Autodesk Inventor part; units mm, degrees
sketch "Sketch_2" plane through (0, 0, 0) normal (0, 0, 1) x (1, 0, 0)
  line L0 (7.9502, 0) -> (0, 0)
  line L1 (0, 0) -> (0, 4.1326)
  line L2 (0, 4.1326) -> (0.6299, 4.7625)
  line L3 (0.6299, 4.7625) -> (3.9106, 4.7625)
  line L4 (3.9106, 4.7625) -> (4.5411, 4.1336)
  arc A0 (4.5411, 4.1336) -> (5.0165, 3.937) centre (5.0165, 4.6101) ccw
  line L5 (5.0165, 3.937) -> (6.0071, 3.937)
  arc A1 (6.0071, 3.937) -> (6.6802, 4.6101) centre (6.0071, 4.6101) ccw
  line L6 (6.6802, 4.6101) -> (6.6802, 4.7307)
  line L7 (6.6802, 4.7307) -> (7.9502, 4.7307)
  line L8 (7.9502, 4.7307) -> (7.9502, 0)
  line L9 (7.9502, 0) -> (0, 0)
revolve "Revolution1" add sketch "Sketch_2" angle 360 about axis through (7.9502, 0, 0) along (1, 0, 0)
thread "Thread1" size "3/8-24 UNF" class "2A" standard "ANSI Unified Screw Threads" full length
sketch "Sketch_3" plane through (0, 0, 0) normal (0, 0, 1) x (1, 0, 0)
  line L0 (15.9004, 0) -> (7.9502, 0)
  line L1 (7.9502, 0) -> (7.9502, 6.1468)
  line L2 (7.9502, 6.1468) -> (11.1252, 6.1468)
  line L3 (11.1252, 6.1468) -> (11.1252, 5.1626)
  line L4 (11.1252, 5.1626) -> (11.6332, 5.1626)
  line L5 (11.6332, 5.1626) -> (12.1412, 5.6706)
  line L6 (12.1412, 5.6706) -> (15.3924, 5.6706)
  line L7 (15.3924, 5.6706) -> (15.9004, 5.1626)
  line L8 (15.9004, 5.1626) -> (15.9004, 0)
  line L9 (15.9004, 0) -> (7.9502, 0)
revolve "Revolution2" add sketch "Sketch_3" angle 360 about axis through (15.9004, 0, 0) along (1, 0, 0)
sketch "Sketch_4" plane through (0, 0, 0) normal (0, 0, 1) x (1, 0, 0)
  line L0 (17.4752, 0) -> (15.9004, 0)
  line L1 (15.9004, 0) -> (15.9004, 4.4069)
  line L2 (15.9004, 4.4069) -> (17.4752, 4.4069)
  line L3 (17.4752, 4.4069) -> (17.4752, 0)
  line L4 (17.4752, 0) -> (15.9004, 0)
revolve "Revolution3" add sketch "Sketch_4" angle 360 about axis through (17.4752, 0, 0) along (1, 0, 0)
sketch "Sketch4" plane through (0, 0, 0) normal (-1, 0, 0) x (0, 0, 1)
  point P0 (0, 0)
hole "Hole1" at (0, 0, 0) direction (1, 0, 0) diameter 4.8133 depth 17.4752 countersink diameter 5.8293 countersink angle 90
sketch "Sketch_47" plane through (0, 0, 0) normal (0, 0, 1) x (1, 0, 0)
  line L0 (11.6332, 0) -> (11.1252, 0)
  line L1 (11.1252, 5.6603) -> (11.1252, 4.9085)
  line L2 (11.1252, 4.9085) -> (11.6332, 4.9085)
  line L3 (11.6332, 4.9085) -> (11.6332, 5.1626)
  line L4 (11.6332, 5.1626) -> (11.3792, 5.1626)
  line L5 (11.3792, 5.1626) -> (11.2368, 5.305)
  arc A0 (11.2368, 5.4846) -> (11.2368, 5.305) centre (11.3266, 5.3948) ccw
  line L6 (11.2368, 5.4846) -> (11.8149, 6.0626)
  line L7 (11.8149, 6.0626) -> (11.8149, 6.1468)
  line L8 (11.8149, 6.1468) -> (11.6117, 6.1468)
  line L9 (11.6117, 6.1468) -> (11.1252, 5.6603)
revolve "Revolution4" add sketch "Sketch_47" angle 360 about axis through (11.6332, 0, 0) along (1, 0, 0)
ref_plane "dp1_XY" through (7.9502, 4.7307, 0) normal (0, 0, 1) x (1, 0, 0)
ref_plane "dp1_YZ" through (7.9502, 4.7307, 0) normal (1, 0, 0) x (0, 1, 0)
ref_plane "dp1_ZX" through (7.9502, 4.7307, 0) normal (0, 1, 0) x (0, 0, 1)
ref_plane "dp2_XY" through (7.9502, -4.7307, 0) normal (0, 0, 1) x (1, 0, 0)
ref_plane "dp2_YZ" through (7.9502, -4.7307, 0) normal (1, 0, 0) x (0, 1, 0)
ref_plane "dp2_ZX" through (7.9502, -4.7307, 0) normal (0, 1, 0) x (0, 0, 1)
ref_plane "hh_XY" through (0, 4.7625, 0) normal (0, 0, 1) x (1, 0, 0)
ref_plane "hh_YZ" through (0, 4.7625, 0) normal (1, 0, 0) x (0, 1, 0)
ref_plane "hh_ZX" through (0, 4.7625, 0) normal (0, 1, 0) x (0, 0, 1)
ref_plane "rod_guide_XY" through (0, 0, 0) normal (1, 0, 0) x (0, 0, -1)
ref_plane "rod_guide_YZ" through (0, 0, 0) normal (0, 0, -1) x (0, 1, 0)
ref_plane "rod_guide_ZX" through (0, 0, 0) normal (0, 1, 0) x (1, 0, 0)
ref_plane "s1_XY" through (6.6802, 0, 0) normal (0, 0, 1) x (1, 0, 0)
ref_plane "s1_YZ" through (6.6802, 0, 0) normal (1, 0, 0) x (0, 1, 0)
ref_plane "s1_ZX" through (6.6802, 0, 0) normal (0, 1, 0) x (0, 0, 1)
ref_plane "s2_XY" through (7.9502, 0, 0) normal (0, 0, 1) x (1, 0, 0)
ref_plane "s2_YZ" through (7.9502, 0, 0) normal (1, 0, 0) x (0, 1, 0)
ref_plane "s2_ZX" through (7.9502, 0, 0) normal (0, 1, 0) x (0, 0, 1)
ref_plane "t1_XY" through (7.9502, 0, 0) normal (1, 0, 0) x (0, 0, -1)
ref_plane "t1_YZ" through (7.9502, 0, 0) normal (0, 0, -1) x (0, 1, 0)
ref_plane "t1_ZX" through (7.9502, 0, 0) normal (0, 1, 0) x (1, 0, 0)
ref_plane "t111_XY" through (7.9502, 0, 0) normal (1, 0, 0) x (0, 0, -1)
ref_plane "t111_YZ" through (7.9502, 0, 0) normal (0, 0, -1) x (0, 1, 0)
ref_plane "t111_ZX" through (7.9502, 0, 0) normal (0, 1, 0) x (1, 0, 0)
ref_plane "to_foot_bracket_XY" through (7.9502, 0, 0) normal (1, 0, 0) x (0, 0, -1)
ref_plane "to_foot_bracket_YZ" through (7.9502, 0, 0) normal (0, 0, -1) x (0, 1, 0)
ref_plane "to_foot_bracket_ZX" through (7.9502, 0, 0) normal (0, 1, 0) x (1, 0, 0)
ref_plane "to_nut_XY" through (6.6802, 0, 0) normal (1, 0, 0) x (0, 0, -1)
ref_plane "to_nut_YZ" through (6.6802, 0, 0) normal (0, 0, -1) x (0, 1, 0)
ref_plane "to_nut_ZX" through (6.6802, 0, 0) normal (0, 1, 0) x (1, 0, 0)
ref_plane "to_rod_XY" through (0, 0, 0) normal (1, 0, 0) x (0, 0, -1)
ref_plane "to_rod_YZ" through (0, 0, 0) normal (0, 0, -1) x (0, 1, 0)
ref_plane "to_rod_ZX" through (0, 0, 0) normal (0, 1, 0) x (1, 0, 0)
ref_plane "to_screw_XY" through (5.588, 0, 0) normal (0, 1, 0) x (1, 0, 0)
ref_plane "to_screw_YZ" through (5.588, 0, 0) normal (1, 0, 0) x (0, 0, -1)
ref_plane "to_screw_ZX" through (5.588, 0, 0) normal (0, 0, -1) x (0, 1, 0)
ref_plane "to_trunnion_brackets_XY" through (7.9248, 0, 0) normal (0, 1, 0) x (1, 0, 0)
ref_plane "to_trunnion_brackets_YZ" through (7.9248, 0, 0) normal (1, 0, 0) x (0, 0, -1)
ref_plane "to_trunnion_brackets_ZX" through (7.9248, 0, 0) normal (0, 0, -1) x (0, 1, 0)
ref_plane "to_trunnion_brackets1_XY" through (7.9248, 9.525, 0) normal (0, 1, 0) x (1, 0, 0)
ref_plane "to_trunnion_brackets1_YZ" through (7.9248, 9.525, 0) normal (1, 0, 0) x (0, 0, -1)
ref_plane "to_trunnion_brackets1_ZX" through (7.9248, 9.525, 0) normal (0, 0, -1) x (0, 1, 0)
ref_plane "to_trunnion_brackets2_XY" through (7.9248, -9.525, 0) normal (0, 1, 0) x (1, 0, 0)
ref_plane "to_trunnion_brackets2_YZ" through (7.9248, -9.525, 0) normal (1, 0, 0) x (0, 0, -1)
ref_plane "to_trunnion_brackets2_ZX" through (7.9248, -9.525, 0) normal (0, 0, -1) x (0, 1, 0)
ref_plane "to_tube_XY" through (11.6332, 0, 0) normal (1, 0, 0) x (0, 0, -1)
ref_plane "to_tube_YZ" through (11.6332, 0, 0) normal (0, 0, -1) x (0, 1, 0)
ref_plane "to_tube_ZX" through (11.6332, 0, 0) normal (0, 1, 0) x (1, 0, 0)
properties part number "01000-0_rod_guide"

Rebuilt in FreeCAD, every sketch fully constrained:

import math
import FreeCAD as App
import Part
import Sketcher

V = App.Vector
Q = App.Units.Quantity

doc = App.newDocument("Part")
params = doc.addObject("Spreadsheet::Sheet", "Params")
for row, (alias, value) in enumerate([
    ("sketch1_width", "0.05 in"),
    ("sketch1_width2", "0.313 in"),
    ("sketch1_width3", "0.039 in"),
    ("revolution_angle", "360 deg"),
    ("sketch2_width", "0.02 in"),
    ("sketch2_width2", "0.313 in"),
    ("sketch2_width3", "0.128 in"),
    ("sketch2_width4", "0.125 in"),
    ("sketch2_height", "0.242 in"),
    ("revolution2_angle", "360 deg"),
    ("sketch3_width", "0.062 in"),
    ("revolution3_angle", "360 deg"),
    ("hole_diameter", "0.1895 in"),
    ("hole_depth", "0.688 in"),
    ("hole_csink_diameter", "0.2295 in"),
    ("sketch5_radius", "0.005 in"),
    ("sketch5_width", "0.02 in"),
    ("sketch5_width2", "0.01 in"),
    ("sketch5_width3", "0.008 in"),
    ("revolution4_angle", "360 deg"),
], start=1):
    params.set(f"A{row}", alias)
    params.set(f"B{row}", "=" + value)
    params.setAlias(f"B{row}", alias)

body = doc.addObject("PartDesign::Body", "Body")

sketch1 = body.newObject("Sketcher::SketchObject", "Sketch")
sketch1.AttachmentSupport = (doc.getObject("XY_Plane"), [""])
sketch1.MapMode = "FlatFace"
sketch1.addGeometry(Part.LineSegment(V(0, 0, 0), V(7.95, 0, 0)), False)
sketch1.addGeometry(Part.LineSegment(V(7.95, 0, 0), V(7.95, 4.73, 0)), False)
sketch1.addGeometry(Part.LineSegment(V(7.95, 4.73, 0), V(6.68, 4.73, 0)), False)
sketch1.addGeometry(Part.LineSegment(V(6.68, 4.73, 0), V(6.68, 4.61, 0)), False)
sketch1.addGeometry(Part.ArcOfCircle(Part.Circle(V(6.01, 4.61, 0), V(0, 0, 1), 0.67), math.radians(-90), math.radians(0)), False)
sketch1.addGeometry(Part.LineSegment(V(6.01, 3.94, 0), V(5.02, 3.94, 0)), False)
sketch1.addGeometry(Part.ArcOfCircle(Part.Circle(V(5.02, 4.61, 0), V(0, 0, 1), 0.67), math.radians(-135), math.radians(-90)), False)
sketch1.addGeometry(Part.LineSegment(V(4.54, 4.13, 0), V(3.91, 4.76, 0)), False)
sketch1.addGeometry(Part.LineSegment(V(3.91, 4.76, 0), V(0.63, 4.76, 0)), False)
sketch1.addGeometry(Part.LineSegment(V(0.63, 4.76, 0), V(0, 4.13, 0)), False)
sketch1.addGeometry(Part.LineSegment(V(0, 4.13, 0), V(0, 0, 0)), False)
sketch1.addConstraint(Sketcher.Constraint("Coincident", 0, 2, 1, 1))
sketch1.addConstraint(Sketcher.Constraint("Coincident", 1, 2, 2, 1))
sketch1.addConstraint(Sketcher.Constraint("Coincident", 2, 2, 3, 1))
sketch1.addConstraint(Sketcher.Constraint("Tangent", 3, 2, 4, 2))
sketch1.addConstraint(Sketcher.Constraint("Tangent", 4, 1, 5, 1))
sketch1.addConstraint(Sketcher.Constraint("Tangent", 5, 2, 6, 2))
sketch1.addConstraint(Sketcher.Constraint("Tangent", 6, 1, 7, 1))
sketch1.addConstraint(Sketcher.Constraint("Coincident", 7, 2, 8, 1))
sketch1.addConstraint(Sketcher.Constraint("Coincident", 8, 2, 9, 1))
sketch1.addConstraint(Sketcher.Constraint("Coincident", 9, 2, 10, 1))
sketch1.addConstraint(Sketcher.Constraint("Coincident", 10, 2, 0, 1))
sketch1.addConstraint(Sketcher.Constraint("Horizontal", 0))
sketch1.addConstraint(Sketcher.Constraint("Vertical", 1))
sketch1.addConstraint(Sketcher.Constraint("Horizontal", 2))
sketch1.addConstraint(Sketcher.Constraint("Vertical", 3))
sketch1.addConstraint(Sketcher.Constraint("Horizontal", 5))
sketch1.addConstraint(Sketcher.Constraint("Horizontal", 8))
sketch1.addConstraint(Sketcher.Constraint("Vertical", 10))
sketch1.addConstraint(Sketcher.Constraint("Coincident", 10, 2, -1, 1))
sketch1.addConstraint(Sketcher.Constraint("Equal", 4, 6))
sketch1.addConstraint(Sketcher.Constraint("Angle", 9, Q("-135 deg")))
sketch1.addConstraint(Sketcher.Constraint("DistanceX", 2, 2, 2, 1, Q("0.05 in")))
sketch1.addConstraint(Sketcher.Constraint("Radius", 4, Q("0.0265 in")))
sketch1.addConstraint(Sketcher.Constraint("DistanceX", 0, 1, 0, 2, Q("0.313 in")))
sketch1.addConstraint(Sketcher.Constraint("DistanceX", 5, 2, 5, 1, Q("0.039 in")))
sketch1.addConstraint(Sketcher.Constraint("DistanceY", 10, 2, 10, 1, Q("0.1627 in")))
sketch1.addConstraint(Sketcher.Constraint("DistanceY", -1, 1, 4, 1, Q("0.155 in")))
sketch1.addConstraint(Sketcher.Constraint("DistanceY", -1, 1, 7, 2, Q("0.1875 in")))
sketch1.addConstraint(Sketcher.Constraint("DistanceY", 4, 1, 2, 2, Q("0.031248 in")))
sketch1.addConstraint(Sketcher.Constraint("DistanceX", 8, 2, 8, 1, Q("3.2807 mm")))
sketch1.setExpression("Constraints[21]", "Params.sketch1_width")
sketch1.setExpression("Constraints[23]", "Params.sketch1_width2")
sketch1.setExpression("Constraints[24]", "Params.sketch1_width3")
revolution = body.newObject("PartDesign::Revolution", "Revolution")
revolution.Profile = sketch1
revolution.ReferenceAxis = (sketch1, ["H_Axis"])
revolution.setExpression("Angle", "Params.revolution_angle")

sketch2 = body.newObject("Sketcher::SketchObject", "Sketch001")
sketch2.AttachmentSupport = (doc.getObject("XY_Plane"), [""])
sketch2.MapMode = "FlatFace"
sketch2.addGeometry(Part.LineSegment(V(8, 0, 0), V(15.9, 0, 0)), False)
sketch2.addGeometry(Part.LineSegment(V(15.9, 0, 0), V(15.9, 5.2, 0)), False)
sketch2.addGeometry(Part.LineSegment(V(15.9, 5.2, 0), V(15.4, 5.7, 0)), False)
sketch2.addGeometry(Part.LineSegment(V(15.4, 5.7, 0), V(12.1, 5.7, 0)), False)
sketch2.addGeometry(Part.LineSegment(V(12.1, 5.7, 0), V(11.6, 5.2, 0)), False)
sketch2.addGeometry(Part.LineSegment(V(11.6, 5.2, 0), V(11.1, 5.2, 0)), False)
sketch2.addGeometry(Part.LineSegment(V(11.1, 5.2, 0), V(11.1, 6.1, 0)), False)
sketch2.addGeometry(Part.LineSegment(V(11.1, 6.1, 0), V(8, 6.1, 0)), False)
sketch2.addGeometry(Part.LineSegment(V(8, 6.1, 0), V(8, 0, 0)), False)
sketch2.addConstraint(Sketcher.Constraint("Coincident", 0, 2, 1, 1))
sketch2.addConstraint(Sketcher.Constraint("Coincident", 1, 2, 2, 1))
sketch2.addConstraint(Sketcher.Constraint("Coincident", 2, 2, 3, 1))
sketch2.addConstraint(Sketcher.Constraint("Coincident", 3, 2, 4, 1))
sketch2.addConstraint(Sketcher.Constraint("Coincident", 4, 2, 5, 1))
sketch2.addConstraint(Sketcher.Constraint("Coincident", 5, 2, 6, 1))
sketch2.addConstraint(Sketcher.Constraint("Coincident", 6, 2, 7, 1))
sketch2.addConstraint(Sketcher.Constraint("Coincident", 7, 2, 8, 1))
sketch2.addConstraint(Sketcher.Constraint("Coincident", 8, 2, 0, 1))
sketch2.addConstraint(Sketcher.Constraint("Horizontal", 0))
sketch2.addConstraint(Sketcher.Constraint("Vertical", 1))
sketch2.addConstraint(Sketcher.Constraint("Horizontal", 3))
sketch2.addConstraint(Sketcher.Constraint("Horizontal", 5))
sketch2.addConstraint(Sketcher.Constraint("Vertical", 6))
sketch2.addConstraint(Sketcher.Constraint("Horizontal", 7))
sketch2.addConstraint(Sketcher.Constraint("Vertical", 8))
sketch2.addConstraint(Sketcher.Constraint("PointOnObject", 0, 2, -1))
sketch2.addConstraint(Sketcher.Constraint("Perpendicular", 2, 4))
sketch2.addConstraint(Sketcher.Constraint("Horizontal", 1, 2, 4, 2))
sketch2.addConstraint(Sketcher.Constraint("Equal", 2, 4))
sketch2.addConstraint(Sketcher.Constraint("DistanceX", 5, 2, 5, 1, Q("0.02 in")))
sketch2.addConstraint(Sketcher.Constraint("DistanceX", 0, 1, 0, 2, Q("0.313 in")))
sketch2.addConstraint(Sketcher.Constraint("DistanceX", 3, 2, 3, 1, Q("0.128 in")))
sketch2.addConstraint(Sketcher.Constraint("DistanceX", 7, 2, 7, 1, Q("0.125 in")))
sketch2.addConstraint(Sketcher.Constraint("DistanceY", 8, 2, 8, 1, Q("0.242 in")))
sketch2.addConstraint(Sketcher.Constraint("DistanceX", -1, 1, 0, 2, Q("0.626 in")))
sketch2.addConstraint(Sketcher.Constraint("DistanceY", 1, 1, 1, 2, Q("5.1626 mm")))
sketch2.setExpression("Constraints[20]", "Params.sketch2_width")
sketch2.setExpression("Constraints[21]", "Params.sketch2_width2")
sketch2.setExpression("Constraints[22]", "Params.sketch2_width3")
sketch2.setExpression("Constraints[23]", "Params.sketch2_width4")
sketch2.setExpression("Constraints[24]", "Params.sketch2_height")
revolution2 = body.newObject("PartDesign::Revolution", "Revolution001")
revolution2.Profile = sketch2
revolution2.ReferenceAxis = (sketch2, ["H_Axis"])
revolution2.setExpression("Angle", "Params.revolution2_angle")

sketch3 = body.newObject("Sketcher::SketchObject", "Sketch002")
sketch3.AttachmentSupport = (doc.getObject("XY_Plane"), [""])
sketch3.MapMode = "FlatFace"
sketch3.addGeometry(Part.LineSegment(V(15.9, 0, 0), V(17.5, 0, 0)), False)
sketch3.addGeometry(Part.LineSegment(V(17.5, 0, 0), V(17.5, 4.4, 0)), False)
sketch3.addGeometry(Part.LineSegment(V(17.5, 4.4, 0), V(15.9, 4.4, 0)), False)
sketch3.addGeometry(Part.LineSegment(V(15.9, 4.4, 0), V(15.9, 0, 0)), False)
sketch3.addConstraint(Sketcher.Constraint("Coincident", 0, 2, 1, 1))
sketch3.addConstraint(Sketcher.Constraint("Coincident", 1, 2, 2, 1))
sketch3.addConstraint(Sketcher.Constraint("Coincident", 2, 2, 3, 1))
sketch3.addConstraint(Sketcher.Constraint("Coincident", 3, 2, 0, 1))
sketch3.addConstraint(Sketcher.Constraint("Horizontal", 0))
sketch3.addConstraint(Sketcher.Constraint("Vertical", 1))
sketch3.addConstraint(Sketcher.Constraint("Horizontal", 2))
sketch3.addConstraint(Sketcher.Constraint("Vertical", 3))
sketch3.addConstraint(Sketcher.Constraint("PointOnObject", 0, 2, -1))
sketch3.addConstraint(Sketcher.Constraint("DistanceX", 0, 1, 0, 2, Q("0.062 in")))
sketch3.addConstraint(Sketcher.Constraint("DistanceY", 1, 1, 1, 2, Q("0.1735 in")))
sketch3.addConstraint(Sketcher.Constraint("DistanceX", -1, 1, 0, 2, Q("0.688 in")))
sketch3.setExpression("Constraints[9]", "Params.sketch3_width")
revolution3 = body.newObject("PartDesign::Revolution", "Revolution002")
revolution3.Profile = sketch3
revolution3.ReferenceAxis = (sketch3, ["H_Axis"])
revolution3.setExpression("Angle", "Params.revolution3_angle")

sketch4 = body.newObject("Sketcher::SketchObject", "Sketch003")
sketch4.AttachmentSupport = (doc.getObject("YZ_Plane"), [""])
sketch4.MapMode = "FlatFace"
sketch4.addGeometry(Part.Circle(V(0, 0, 0), V(0, 0, 1), 2.4), False)
sketch4.addConstraint(Sketcher.Constraint("Coincident", 0, 3, -1, 1))
sketch4.addConstraint(Sketcher.Constraint("Diameter", 0, Q("0.1895 in")))
doc.recompute()
hole = body.newObject("PartDesign::Hole", "Hole")
hole.Profile = sketch4
hole.ThreadType = "None"
hole.setExpression("Diameter", "Params.hole_diameter")
hole.DepthType = "Dimension"
hole.setExpression("Depth", "Params.hole_depth")
hole.DrillPoint = "Flat"
hole.HoleCutType = "Countersink"
hole.setExpression("HoleCutDiameter", "Params.hole_csink_diameter")
hole.HoleCutCountersinkAngle = 90
hole.Reversed = True

sketch5 = body.newObject("Sketcher::SketchObject", "Sketch004")
sketch5.AttachmentSupport = (doc.getObject("XY_Plane"), [""])
sketch5.MapMode = "FlatFace"
sketch5.addGeometry(Part.LineSegment(V(11.61, 6.15, 0), V(11.13, 5.66, 0)), False)
sketch5.addGeometry(Part.LineSegment(V(11.13, 5.66, 0), V(11.13, 4.91, 0)), False)
sketch5.addGeometry(Part.LineSegment(V(11.13, 4.91, 0), V(11.63, 4.91, 0)), False)
sketch5.addGeometry(Part.LineSegment(V(11.63, 4.91, 0), V(11.63, 5.16, 0)), False)
sketch5.addGeometry(Part.LineSegment(V(11.63, 5.16, 0), V(11.38, 5.16, 0)), False)
sketch5.addGeometry(Part.LineSegment(V(11.38, 5.16, 0), V(11.24, 5.3, 0)), False)
sketch5.addGeometry(Part.ArcOfCircle(Part.Circle(V(11.33, 5.39, 0), V(0, 0, 1), 0.13), math.radians(135), math.radians(225)), False)
sketch5.addGeometry(Part.LineSegment(V(11.24, 5.48, 0), V(11.81, 6.06, 0)), False)
sketch5.addGeometry(Part.LineSegment(V(11.81, 6.06, 0), V(11.81, 6.15, 0)), False)
sketch5.addGeometry(Part.LineSegment(V(11.81, 6.15, 0), V(11.61, 6.15, 0)), False)
sketch5.addConstraint(Sketcher.Constraint("Coincident", 0, 2, 1, 1))
sketch5.addConstraint(Sketcher.Constraint("Coincident", 1, 2, 2, 1))
sketch5.addConstraint(Sketcher.Constraint("Coincident", 2, 2, 3, 1))
sketch5.addConstraint(Sketcher.Constraint("Coincident", 3, 2, 4, 1))
sketch5.addConstraint(Sketcher.Constraint("Coincident", 4, 2, 5, 1))
sketch5.addConstraint(Sketcher.Constraint("Tangent", 5, 2, 6, 2))
sketch5.addConstraint(Sketcher.Constraint("Tangent", 6, 1, 7, 1))
sketch5.addConstraint(Sketcher.Constraint("Coincident", 7, 2, 8, 1))
sketch5.addConstraint(Sketcher.Constraint("Coincident", 8, 2, 9, 1))
sketch5.addConstraint(Sketcher.Constraint("Coincident", 9, 2, 0, 1))
sketch5.addConstraint(Sketcher.Constraint("Vertical", 1))
sketch5.addConstraint(Sketcher.Constraint("Horizontal", 2))
sketch5.addConstraint(Sketcher.Constraint("Vertical", 3))
sketch5.addConstraint(Sketcher.Constraint("Horizontal", 4))
sketch5.addConstraint(Sketcher.Constraint("Vertical", 8))
sketch5.addConstraint(Sketcher.Constraint("Horizontal", 9))
sketch5.addConstraint(Sketcher.Constraint("Perpendicular", 0, 5))
sketch5.addConstraint(Sketcher.Constraint("Perpendicular", 5, 7))
sketch5.addConstraint(Sketcher.Constraint("Vertical", 5, 2, 6, 1))
sketch5.addConstraint(Sketcher.Constraint("Equal", 4, 3))
sketch5.addConstraint(Sketcher.Constraint("Radius", 6, Q("0.005 in")))
sketch5.addConstraint(Sketcher.Constraint("DistanceX", 2, 1, 2, 2, Q("0.02 in")))
sketch5.addConstraint(Sketcher.Constraint("DistanceX", 4, 2, 4, 1, Q("0.01 in")))
sketch5.addConstraint(Sketcher.Constraint("DistanceX", 9, 2, 9, 1, Q("0.008 in")))
sketch5.addConstraint(Sketcher.Constraint("DistanceY", 1, 2, 1, 1, Q("0.0296 in")))
sketch5.addConstraint(Sketcher.Constraint("DistanceX", -1, 1, 0, 2, Q("0.438 in")))
sketch5.addConstraint(Sketcher.Constraint("DistanceY", -1, 1, 8, 2, Q("0.242 in")))
sketch5.addConstraint(Sketcher.Constraint("DistanceY", 5, 2, 0, 2, Q("0.014 in")))
sketch5.addConstraint(Sketcher.Constraint("DistanceY", -1, 1, 6, 3, Q("0.2124 in")))
sketch5.setExpression("Constraints[20]", "Params.sketch5_radius")
sketch5.setExpression("Constraints[21]", "Params.sketch5_width")
sketch5.setExpression("Constraints[22]", "Params.sketch5_width2")
sketch5.setExpression("Constraints[23]", "Params.sketch5_width3")
revolution4 = body.newObject("PartDesign::Revolution", "Revolution003")
revolution4.Profile = sketch5
revolution4.ReferenceAxis = (sketch5, ["H_Axis"])
revolution4.setExpression("Angle", "Params.revolution4_angle")

doc.recompute()
